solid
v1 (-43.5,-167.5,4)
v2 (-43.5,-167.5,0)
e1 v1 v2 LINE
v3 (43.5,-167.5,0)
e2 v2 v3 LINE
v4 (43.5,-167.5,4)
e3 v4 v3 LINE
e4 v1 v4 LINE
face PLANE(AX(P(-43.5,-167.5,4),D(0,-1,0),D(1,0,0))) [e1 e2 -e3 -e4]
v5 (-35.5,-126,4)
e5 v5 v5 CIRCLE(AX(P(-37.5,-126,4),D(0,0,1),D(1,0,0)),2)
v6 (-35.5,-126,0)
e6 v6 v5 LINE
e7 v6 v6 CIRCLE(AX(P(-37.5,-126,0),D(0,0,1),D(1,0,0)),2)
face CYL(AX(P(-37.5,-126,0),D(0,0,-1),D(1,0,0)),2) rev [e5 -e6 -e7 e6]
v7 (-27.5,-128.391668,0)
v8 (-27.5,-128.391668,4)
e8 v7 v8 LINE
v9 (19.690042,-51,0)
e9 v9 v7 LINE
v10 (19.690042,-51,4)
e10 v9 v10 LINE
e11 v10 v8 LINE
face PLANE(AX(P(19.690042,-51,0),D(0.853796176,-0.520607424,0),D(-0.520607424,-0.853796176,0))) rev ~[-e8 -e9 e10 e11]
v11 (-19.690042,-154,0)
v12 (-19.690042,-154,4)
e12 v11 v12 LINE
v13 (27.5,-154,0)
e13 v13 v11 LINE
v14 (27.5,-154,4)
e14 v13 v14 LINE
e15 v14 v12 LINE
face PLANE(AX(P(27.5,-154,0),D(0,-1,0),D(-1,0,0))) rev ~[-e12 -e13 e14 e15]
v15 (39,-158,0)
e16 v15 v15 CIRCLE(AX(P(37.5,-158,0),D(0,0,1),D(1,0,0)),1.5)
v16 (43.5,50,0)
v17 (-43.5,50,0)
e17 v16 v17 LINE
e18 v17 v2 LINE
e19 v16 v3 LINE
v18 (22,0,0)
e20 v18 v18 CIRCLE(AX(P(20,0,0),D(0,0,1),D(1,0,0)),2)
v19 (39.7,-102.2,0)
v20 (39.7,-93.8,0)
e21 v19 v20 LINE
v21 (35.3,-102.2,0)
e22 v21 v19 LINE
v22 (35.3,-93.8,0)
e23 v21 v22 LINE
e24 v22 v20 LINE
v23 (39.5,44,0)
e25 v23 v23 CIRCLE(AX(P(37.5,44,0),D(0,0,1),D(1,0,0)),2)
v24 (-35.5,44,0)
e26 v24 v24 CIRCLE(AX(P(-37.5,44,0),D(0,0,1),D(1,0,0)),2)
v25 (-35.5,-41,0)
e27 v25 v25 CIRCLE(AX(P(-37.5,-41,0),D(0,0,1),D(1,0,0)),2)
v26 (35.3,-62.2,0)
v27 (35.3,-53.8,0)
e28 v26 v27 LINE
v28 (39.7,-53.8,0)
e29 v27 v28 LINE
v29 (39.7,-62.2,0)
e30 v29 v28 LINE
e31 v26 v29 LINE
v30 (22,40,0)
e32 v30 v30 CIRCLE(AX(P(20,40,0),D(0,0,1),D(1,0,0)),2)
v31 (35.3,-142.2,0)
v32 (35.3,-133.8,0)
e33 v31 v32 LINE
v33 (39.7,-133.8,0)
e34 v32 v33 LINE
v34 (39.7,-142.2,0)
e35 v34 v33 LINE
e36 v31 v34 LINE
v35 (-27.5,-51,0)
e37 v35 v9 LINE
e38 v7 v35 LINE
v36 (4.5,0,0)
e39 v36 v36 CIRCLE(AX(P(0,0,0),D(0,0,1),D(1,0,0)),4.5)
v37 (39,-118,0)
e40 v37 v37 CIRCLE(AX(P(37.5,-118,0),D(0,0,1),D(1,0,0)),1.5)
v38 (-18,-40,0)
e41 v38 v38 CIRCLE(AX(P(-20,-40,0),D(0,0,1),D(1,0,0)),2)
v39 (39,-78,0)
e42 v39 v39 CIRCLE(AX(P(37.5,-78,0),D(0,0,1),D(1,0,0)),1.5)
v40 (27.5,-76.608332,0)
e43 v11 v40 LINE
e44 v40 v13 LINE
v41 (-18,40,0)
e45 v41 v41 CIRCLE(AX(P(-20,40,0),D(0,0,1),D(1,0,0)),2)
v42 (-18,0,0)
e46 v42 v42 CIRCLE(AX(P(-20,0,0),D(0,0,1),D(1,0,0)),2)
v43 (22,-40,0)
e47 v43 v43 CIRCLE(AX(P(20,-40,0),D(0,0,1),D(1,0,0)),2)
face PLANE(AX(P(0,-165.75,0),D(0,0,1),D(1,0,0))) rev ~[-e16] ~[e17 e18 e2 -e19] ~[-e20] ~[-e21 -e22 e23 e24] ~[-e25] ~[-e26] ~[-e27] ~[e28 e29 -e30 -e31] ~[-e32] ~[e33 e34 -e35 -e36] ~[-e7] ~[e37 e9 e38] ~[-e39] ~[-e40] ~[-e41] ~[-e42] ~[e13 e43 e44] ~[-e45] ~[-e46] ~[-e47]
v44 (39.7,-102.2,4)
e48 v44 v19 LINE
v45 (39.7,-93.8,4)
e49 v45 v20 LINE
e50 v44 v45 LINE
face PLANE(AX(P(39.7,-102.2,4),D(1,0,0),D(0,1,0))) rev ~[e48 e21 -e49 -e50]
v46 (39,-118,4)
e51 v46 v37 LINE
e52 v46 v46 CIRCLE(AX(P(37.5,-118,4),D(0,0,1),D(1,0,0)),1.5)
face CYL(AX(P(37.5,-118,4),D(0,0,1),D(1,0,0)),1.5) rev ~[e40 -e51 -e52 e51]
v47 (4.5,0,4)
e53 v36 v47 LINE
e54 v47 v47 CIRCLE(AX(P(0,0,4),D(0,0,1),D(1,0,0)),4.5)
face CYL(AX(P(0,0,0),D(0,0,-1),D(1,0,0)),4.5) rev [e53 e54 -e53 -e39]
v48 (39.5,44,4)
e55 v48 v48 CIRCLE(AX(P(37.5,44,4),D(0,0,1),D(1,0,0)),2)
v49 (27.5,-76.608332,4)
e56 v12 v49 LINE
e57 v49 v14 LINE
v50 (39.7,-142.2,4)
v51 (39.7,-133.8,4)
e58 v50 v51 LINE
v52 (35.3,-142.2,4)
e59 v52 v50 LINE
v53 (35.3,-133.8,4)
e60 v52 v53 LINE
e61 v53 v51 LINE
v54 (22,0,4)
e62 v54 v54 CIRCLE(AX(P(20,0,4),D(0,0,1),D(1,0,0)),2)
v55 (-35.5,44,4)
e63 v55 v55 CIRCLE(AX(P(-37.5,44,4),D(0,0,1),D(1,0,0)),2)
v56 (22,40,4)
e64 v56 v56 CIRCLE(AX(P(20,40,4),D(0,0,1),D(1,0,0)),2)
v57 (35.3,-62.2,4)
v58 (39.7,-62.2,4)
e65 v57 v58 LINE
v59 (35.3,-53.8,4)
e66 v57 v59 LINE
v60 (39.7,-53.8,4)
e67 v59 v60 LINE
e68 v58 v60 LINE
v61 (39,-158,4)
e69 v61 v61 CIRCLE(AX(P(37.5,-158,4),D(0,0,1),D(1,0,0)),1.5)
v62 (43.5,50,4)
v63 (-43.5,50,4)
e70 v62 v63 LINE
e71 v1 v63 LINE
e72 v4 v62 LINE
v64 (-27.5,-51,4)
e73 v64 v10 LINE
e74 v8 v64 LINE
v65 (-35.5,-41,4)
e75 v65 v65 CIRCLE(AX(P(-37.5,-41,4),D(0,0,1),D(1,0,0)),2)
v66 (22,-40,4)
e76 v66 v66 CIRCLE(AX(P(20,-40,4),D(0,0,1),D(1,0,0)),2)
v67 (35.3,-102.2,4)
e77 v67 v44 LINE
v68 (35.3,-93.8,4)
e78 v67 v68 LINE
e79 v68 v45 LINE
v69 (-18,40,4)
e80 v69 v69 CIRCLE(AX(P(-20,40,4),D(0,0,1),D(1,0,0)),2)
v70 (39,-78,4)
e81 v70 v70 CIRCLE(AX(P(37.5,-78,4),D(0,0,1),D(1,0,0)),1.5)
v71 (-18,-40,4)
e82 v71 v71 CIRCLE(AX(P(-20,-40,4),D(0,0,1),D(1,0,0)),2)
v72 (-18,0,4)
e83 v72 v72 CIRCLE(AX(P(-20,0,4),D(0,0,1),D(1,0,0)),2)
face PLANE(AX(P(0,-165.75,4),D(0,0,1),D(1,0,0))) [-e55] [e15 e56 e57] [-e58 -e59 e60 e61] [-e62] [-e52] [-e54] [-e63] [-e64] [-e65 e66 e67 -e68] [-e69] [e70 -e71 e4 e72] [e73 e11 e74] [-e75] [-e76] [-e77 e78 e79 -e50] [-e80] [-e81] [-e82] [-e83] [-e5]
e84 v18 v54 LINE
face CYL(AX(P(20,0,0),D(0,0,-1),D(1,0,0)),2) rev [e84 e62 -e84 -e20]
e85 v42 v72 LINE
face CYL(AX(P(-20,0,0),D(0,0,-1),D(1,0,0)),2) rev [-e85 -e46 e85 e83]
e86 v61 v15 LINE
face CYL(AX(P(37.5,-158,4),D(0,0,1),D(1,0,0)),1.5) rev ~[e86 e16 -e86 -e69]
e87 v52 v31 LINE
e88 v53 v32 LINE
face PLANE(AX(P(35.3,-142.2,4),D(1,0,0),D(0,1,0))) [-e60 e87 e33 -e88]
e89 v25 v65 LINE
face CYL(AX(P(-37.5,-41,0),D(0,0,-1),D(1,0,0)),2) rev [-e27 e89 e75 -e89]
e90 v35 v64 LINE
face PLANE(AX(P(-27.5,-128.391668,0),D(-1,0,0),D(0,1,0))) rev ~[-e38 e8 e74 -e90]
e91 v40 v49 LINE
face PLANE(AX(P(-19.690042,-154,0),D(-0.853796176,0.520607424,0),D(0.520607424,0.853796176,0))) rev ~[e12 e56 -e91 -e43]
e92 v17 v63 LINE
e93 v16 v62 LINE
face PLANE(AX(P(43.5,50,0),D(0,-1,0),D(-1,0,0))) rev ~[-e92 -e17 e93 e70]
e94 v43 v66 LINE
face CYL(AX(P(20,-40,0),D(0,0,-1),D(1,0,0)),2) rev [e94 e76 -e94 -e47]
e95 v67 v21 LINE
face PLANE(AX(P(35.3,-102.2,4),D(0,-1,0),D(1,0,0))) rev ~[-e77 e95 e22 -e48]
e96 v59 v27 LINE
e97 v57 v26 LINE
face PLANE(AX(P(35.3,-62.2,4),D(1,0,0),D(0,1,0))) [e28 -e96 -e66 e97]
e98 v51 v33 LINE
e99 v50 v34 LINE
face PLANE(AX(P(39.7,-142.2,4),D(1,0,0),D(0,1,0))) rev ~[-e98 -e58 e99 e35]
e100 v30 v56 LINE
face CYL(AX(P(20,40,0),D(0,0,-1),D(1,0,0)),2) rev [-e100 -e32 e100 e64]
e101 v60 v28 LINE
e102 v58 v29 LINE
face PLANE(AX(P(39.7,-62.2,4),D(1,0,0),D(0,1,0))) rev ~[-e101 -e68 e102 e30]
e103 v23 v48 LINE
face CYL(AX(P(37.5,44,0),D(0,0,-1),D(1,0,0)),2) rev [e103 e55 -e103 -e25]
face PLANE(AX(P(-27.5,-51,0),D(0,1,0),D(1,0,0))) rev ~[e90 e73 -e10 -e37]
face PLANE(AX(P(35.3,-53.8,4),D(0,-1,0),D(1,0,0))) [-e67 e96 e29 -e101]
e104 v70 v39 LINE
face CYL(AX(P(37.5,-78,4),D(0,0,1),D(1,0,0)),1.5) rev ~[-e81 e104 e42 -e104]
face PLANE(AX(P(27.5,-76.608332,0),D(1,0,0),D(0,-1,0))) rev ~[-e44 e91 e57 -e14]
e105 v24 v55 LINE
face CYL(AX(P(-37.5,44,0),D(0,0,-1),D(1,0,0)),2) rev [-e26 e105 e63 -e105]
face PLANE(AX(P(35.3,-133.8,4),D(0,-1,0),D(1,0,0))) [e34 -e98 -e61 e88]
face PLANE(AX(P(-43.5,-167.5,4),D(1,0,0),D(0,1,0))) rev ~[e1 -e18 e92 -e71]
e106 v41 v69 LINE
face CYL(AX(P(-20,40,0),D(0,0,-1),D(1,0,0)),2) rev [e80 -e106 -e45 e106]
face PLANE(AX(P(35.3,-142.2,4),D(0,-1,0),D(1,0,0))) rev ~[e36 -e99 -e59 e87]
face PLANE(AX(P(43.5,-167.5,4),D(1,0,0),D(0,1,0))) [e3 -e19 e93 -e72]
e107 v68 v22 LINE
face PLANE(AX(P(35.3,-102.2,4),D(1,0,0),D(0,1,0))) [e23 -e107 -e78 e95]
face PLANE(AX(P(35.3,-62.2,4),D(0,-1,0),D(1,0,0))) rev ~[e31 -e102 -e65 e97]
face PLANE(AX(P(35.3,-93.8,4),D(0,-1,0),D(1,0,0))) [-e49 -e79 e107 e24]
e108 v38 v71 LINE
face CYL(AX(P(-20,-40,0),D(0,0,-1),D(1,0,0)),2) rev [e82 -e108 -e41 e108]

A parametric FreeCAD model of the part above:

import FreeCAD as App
import Part
import Sketcher
from FreeCAD import Vector


def add_polygon(sketch, points):
    """Adds a closed chain of lines whose ends are joined by coincident constraints."""
    first, n = sketch.GeometryCount, len(points)
    for a, b in zip(points, points[1:] + points[:1]):
        sketch.addGeometry(Part.LineSegment(App.Vector(*a, 0), App.Vector(*b, 0)), False)
    for i in range(n):
        sketch.addConstraint(Sketcher.Constraint("Coincident", first + i, 2, first + (i + 1) % n, 1))

doc = App.newDocument("Part")
body = doc.addObject("PartDesign::Body", "Body")

# Sketch on XY plane
sketch1 = body.newObject("Sketcher::SketchObject", "Sketch")
sketch1.AttachmentSupport = (doc.getObject("XY_Plane"), [""])
sketch1.MapMode = "FlatFace"
add_polygon(sketch1, [(-43.5, 50), (-43.5, -164), (43.5, -164), (43.5, 50)])  # lines 0-3
sketch1.addGeometry(Part.Circle(Vector(-37.5, -126, 0), Vector(0, 0, 1), 2), False)  # 4
add_polygon(sketch1, [(19.7, -51), (-27.5, -128.4), (-27.5, -51)])  # lines 5-7
add_polygon(sketch1, [(27.5, -154), (-19.7, -154), (27.5, -76.6)])  # lines 8-10
sketch1.addGeometry(Part.Circle(Vector(-37.5, -41, 0), Vector(0, 0, 1), 2), False)  # 11
sketch1.addGeometry(Part.Circle(Vector(-20, -40, 0), Vector(0, 0, 1), 2), False)  # 12
sketch1.addGeometry(Part.Circle(Vector(-20, 0, 0), Vector(0, 0, 1), 2), False)  # 13
sketch1.addGeometry(Part.Circle(Vector(-37.5, 44, 0), Vector(0, 0, 1), 2), False)  # 14
sketch1.addGeometry(Part.Circle(Vector(-20, 40, 0), Vector(0, 0, 1), 2), False)  # 15
sketch1.addGeometry(Part.Circle(Vector(20, -40, 0), Vector(0, 0, 1), 2), False)  # 16
sketch1.addGeometry(Part.Circle(Vector(0, 0, 0), Vector(0, 0, 1), 4.5), False)  # 17
sketch1.addGeometry(Part.Circle(Vector(20, 0, 0), Vector(0, 0, 1), 2), False)  # 18
sketch1.addGeometry(Part.Circle(Vector(20, 40, 0), Vector(0, 0, 1), 2), False)  # 19
sketch1.addGeometry(Part.Circle(Vector(37.5, 44, 0), Vector(0, 0, 1), 2), False)  # 20
sketch1.addConstraint([
    Sketcher.Constraint("Vertical", 0),
    Sketcher.Constraint("Horizontal", 1),
    Sketcher.Constraint("Vertical", 2),
    Sketcher.Constraint("Horizontal", 3),
    Sketcher.Constraint("Vertical", 6),
    Sketcher.Constraint("Horizontal", 7),
    Sketcher.Constraint("Horizontal", 8),
    Sketcher.Constraint("Vertical", 10),
    Sketcher.Constraint("Coincident", 17, 3, -1, 1),
    Sketcher.Constraint("Equal", 4, 11),
    Sketcher.Constraint("Equal", 11, 12),
    Sketcher.Constraint("Equal", 12, 13),
    Sketcher.Constraint("Equal", 13, 14),
    Sketcher.Constraint("Equal", 14, 15),
    Sketcher.Constraint("Equal", 15, 16),
    Sketcher.Constraint("Equal", 16, 18),
    Sketcher.Constraint("Equal", 18, 19),
    Sketcher.Constraint("Equal", 19, 20),
    Sketcher.Constraint("Symmetric", 15, 3, 16, 3, -1, 1),
    Sketcher.Constraint("Symmetric", 13, 3, 18, 3, -1, 1),
    Sketcher.Constraint("Symmetric", 12, 3, 19, 3, -1, 1),
    Sketcher.Constraint("Symmetric", 12, 3, 16, 3, -2),
    Sketcher.Constraint("Symmetric", 14, 3, 20, 3, -2),
    Sketcher.Constraint("PointOnObject", 13, 3, -1),
    Sketcher.Constraint("Parallel", 5, 9),
    Sketcher.Constraint("Vertical", 4, 3, 11, 3),
    Sketcher.Constraint("Vertical", 12, 3, 13, 3),
    Sketcher.Constraint("Vertical", 11, 3, 14, 3),
    Sketcher.Constraint("Equal", 7, 8),
    Sketcher.Constraint("Diameter", 4, 4.0),
    Sketcher.Constraint("Diameter", 17, 9.0),
    Sketcher.Constraint("DistanceX", 1, 1, 1, 2, 87.0),
    Sketcher.Constraint("DistanceY", 0, 2, 0, 1, 214.0),
    Sketcher.Constraint("DistanceY", 4, 3, -1, 1, 126.0),
    Sketcher.Constraint("DistanceY", 11, 3, -1, 1, 41.0),
    Sketcher.Constraint("DistanceX", 12, 3, -1, 1, 20.0),
    Sketcher.Constraint("DistanceY", 12, 3, -1, 1, 40.0),
    Sketcher.Constraint("DistanceY", -1, 1, 14, 3, 44.0),
    Sketcher.Constraint("DistanceY", 0, 2, -1, 1, 164.0),
    Sketcher.Constraint("DistanceY", 6, 2, -1, 1, 51.0),
    Sketcher.Constraint("DistanceY", 8, 2, -1, 1, 154.0),
    Sketcher.Constraint("DistanceX", 0, 2, 4, 3, 6.0),
    Sketcher.Constraint("DistanceX", 20, 3, 2, 2, 6.0),
    Sketcher.Constraint("DistanceX", 4, 3, 5, 2, 10.0),
    Sketcher.Constraint("DistanceX", 6, 2, 9, 2, 55.0),
    Sketcher.Constraint("DistanceX", 7, 1, 7, 2, 47.190042),
    Sketcher.Constraint("DistanceY", 6, 1, 6, 2, 77.391668),
])
pad1 = body.newObject("PartDesign::Pad", "Pad")
pad1.Profile = sketch1
pad1.Length = 4

# Sketch on XY plane
sketch2 = body.newObject("Sketcher::SketchObject", "Sketch001")
sketch2.AttachmentSupport = (doc.getObject("XY_Plane"), [""])
sketch2.MapMode = "FlatFace"
sketch2.AttachmentOffset = App.Placement(Vector(0, 0, 4), App.Rotation())
sketch2.addGeometry(Part.Circle(Vector(37.5, -158, 0), Vector(0, 0, 1), 1.5), False)  # 0
sketch2.addGeometry(Part.Circle(Vector(37.5, -78, 0), Vector(0, 0, 1), 1.5), False)  # 1
sketch2.addGeometry(Part.Circle(Vector(37.5, -118, 0), Vector(0, 0, 1), 1.5), False)  # 2
add_polygon(sketch2, [(35.3, -133.8), (35.3, -142.2), (39.7, -142.2), (39.7, -133.8)])  # lines 3-6
add_polygon(sketch2, [(35.3, -93.8), (35.3, -102.2), (39.7, -102.2), (39.7, -93.8)])  # lines 7-10
add_polygon(sketch2, [(35.3, -53.8), (35.3, -62.2), (39.7, -62.2), (39.7, -53.8)])  # lines 11-14
sketch2.addConstraint([
    Sketcher.Constraint("Vertical", 3),
    Sketcher.Constraint("Horizontal", 4),
    Sketcher.Constraint("Vertical", 5),
    Sketcher.Constraint("Horizontal", 6),
    Sketcher.Constraint("Vertical", 7),
    Sketcher.Constraint("Horizontal", 8),
    Sketcher.Constraint("Vertical", 9),
    Sketcher.Constraint("Horizontal", 10),
    Sketcher.Constraint("Vertical", 11),
    Sketcher.Constraint("Horizontal", 12),
    Sketcher.Constraint("Vertical", 13),
    Sketcher.Constraint("Horizontal", 14),
    Sketcher.Constraint("Equal", 0, 1),
    Sketcher.Constraint("Equal", 1, 2),
    Sketcher.Constraint("Vertical", 0, 3, 1, 3),
    Sketcher.Constraint("Vertical", 1, 3, 2, 3),
    Sketcher.Constraint("Vertical", 6, 2, 7, 2),
    Sketcher.Constraint("Vertical", 5, 2, 8, 2),
    Sketcher.Constraint("Vertical", 10, 2, 11, 2),
    Sketcher.Constraint("Vertical", 9, 2, 12, 2),
    Sketcher.Constraint("Equal", 5, 7),
    Sketcher.Constraint("Equal", 9, 11),
    Sketcher.Constraint("Diameter", 0, 3.0),
    Sketcher.Constraint("DistanceX", 4, 1, 4, 2, 4.4),
    Sketcher.Constraint("DistanceY", 3, 2, 3, 1, 8.4),
    Sketcher.Constraint("DistanceY", 0, 3, -1, 1, 158.0),
    Sketcher.Constraint("DistanceY", 1, 3, -1, 1, 78.0),
    Sketcher.Constraint("DistanceY", 2, 3, -1, 1, 118.0),
    Sketcher.Constraint("DistanceY", 3, 2, 7, 2, 40.0),
    Sketcher.Constraint("DistanceY", 7, 2, 11, 2, 40.0),
    Sketcher.Constraint("DistanceX", -1, 1, 0, 3, 37.5),
    Sketcher.Constraint("DistanceX", -1, 1, 3, 2, 35.3),
    Sketcher.Constraint("DistanceY", 3, 2, -1, 1, 142.2),
])
pocket1 = body.newObject("PartDesign::Pocket", "Pocket")
pocket1.Profile = sketch2
pocket1.Length = 4

# Sketch on XY plane
sketch3 = body.newObject("Sketcher::SketchObject", "Sketch002")
sketch3.AttachmentSupport = (doc.getObject("XY_Plane"), [""])
sketch3.MapMode = "FlatFace"
sketch3.AttachmentOffset = App.Placement(Vector(0, 0, 4), App.Rotation())
add_polygon(sketch3, [(-43.5, -164), (-43.5, -167.5), (43.5, -167.5), (43.5, -164)])  # lines 0-3
sketch3.addConstraint([
    Sketcher.Constraint("Vertical", 0),
    Sketcher.Constraint("Horizontal", 1),
    Sketcher.Constraint("Vertical", 2),
    Sketcher.Constraint("Horizontal", 3),
    Sketcher.Constraint("DistanceX", 1, 1, 1, 2, 87.0),
    Sketcher.Constraint("DistanceY", 0, 2, 0, 1, 3.5),
    Sketcher.Constraint("DistanceY", 2, 2, -1, 1, 164.0),
    Sketcher.Constraint("DistanceX", 0, 2, -1, 1, 43.5),
])
pad2 = body.newObject("PartDesign::Pad", "Pad001")
pad2.Profile = sketch3
pad2.Length = 4
pad2.Reversed = True

doc.recompute()
